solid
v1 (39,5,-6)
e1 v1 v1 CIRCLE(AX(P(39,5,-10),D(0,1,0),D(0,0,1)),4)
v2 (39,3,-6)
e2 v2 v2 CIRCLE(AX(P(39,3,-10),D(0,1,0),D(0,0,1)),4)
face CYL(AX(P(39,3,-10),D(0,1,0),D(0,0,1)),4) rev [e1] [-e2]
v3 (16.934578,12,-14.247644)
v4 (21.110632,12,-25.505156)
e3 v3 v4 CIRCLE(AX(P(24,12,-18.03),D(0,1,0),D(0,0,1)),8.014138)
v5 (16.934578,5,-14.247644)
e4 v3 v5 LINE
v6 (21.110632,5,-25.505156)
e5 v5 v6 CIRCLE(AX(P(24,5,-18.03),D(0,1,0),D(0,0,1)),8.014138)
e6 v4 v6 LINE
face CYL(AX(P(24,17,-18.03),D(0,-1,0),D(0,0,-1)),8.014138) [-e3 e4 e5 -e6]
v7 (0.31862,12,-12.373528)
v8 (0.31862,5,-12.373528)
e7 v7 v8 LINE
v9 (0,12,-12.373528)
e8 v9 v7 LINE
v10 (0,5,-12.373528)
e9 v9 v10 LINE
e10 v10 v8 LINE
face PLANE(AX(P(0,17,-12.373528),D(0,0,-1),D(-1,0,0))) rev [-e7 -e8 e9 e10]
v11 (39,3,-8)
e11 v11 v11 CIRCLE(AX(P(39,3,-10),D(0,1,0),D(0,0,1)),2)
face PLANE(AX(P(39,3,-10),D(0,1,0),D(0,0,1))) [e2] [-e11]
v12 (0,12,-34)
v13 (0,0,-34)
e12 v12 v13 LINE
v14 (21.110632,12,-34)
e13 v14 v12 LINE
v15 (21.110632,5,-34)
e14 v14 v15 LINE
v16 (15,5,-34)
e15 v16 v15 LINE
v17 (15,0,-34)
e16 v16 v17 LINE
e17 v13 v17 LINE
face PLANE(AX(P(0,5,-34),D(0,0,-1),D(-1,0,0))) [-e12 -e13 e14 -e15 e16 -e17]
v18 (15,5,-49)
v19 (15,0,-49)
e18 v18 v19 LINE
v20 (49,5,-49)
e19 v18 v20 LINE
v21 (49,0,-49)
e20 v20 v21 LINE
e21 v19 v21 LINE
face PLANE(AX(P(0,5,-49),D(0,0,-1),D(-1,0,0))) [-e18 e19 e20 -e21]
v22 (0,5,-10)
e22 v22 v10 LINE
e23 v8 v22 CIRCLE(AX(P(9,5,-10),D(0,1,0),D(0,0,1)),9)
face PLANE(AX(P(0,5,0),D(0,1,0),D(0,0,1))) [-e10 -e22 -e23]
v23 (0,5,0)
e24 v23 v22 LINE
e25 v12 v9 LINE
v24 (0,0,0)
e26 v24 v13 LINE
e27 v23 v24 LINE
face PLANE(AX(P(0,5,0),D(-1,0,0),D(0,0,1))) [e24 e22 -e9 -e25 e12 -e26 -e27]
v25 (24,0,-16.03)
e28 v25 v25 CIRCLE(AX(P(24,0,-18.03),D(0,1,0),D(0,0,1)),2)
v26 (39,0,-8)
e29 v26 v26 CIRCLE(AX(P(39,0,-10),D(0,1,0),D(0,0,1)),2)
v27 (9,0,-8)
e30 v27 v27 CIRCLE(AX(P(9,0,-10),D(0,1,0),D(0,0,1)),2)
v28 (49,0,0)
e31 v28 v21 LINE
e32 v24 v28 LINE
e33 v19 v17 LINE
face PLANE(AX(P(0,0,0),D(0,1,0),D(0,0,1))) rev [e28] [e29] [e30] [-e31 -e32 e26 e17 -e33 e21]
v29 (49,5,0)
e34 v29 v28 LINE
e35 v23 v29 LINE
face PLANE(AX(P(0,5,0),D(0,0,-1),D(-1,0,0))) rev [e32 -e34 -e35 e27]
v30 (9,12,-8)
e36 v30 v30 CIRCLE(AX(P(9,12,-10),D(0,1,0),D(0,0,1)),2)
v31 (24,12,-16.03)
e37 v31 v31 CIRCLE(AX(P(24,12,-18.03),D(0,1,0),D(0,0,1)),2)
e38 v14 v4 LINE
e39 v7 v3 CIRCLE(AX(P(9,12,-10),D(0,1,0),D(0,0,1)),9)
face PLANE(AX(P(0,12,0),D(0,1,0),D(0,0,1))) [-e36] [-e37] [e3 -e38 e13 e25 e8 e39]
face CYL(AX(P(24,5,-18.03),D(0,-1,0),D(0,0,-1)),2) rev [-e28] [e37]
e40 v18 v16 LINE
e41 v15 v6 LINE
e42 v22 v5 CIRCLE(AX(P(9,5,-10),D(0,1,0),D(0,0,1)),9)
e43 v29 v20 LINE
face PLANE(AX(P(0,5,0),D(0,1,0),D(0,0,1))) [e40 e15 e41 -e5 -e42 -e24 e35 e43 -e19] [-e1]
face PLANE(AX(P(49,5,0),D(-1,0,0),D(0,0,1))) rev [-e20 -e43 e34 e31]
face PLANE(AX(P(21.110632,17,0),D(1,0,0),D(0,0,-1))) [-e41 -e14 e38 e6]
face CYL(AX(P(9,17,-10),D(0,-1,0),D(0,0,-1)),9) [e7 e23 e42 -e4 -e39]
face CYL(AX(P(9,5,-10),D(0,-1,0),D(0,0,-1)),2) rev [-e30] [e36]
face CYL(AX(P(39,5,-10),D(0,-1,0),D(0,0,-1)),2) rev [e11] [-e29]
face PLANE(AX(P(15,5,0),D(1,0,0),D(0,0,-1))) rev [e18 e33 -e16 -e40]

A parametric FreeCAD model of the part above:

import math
import FreeCAD as App
import Part
import Sketcher

V = App.Vector

doc = App.newDocument("Part")
body = doc.addObject("PartDesign::Body", "Body")

# Sketch on XZ plane
sketch1 = body.newObject("Sketcher::SketchObject", "Sketch")
sketch1.AttachmentSupport = (doc.getObject("XZ_Plane"), [""])
sketch1.MapMode = "FlatFace"
sketch1.addGeometry(Part.LineSegment(V(0, -34, 0), V(0, 0, 0)), False)
sketch1.addGeometry(Part.LineSegment(V(0, 0, 0), V(49, 0, 0)), False)
sketch1.addGeometry(Part.LineSegment(V(49, 0, 0), V(49, -49, 0)), False)
sketch1.addGeometry(Part.LineSegment(V(49, -49, 0), V(15, -49, 0)), False)
sketch1.addGeometry(Part.LineSegment(V(15, -49, 0), V(15, -34, 0)), False)
sketch1.addGeometry(Part.LineSegment(V(15, -34, 0), V(0, -34, 0)), False)
sketch1.addGeometry(Part.Circle(V(9, -10, 0), V(0, 0, 1), 2), False)
sketch1.addGeometry(Part.Circle(V(39, -10, 0), V(0, 0, 1), 2), False)
sketch1.addGeometry(Part.Circle(V(24, -18.03, 0), V(0, 0, 1), 2), False)
sketch1.addConstraint(Sketcher.Constraint("Coincident", 0, 2, 1, 1))
sketch1.addConstraint(Sketcher.Constraint("Coincident", 1, 2, 2, 1))
sketch1.addConstraint(Sketcher.Constraint("Coincident", 2, 2, 3, 1))
sketch1.addConstraint(Sketcher.Constraint("Coincident", 3, 2, 4, 1))
sketch1.addConstraint(Sketcher.Constraint("Coincident", 4, 2, 5, 1))
sketch1.addConstraint(Sketcher.Constraint("Coincident", 5, 2, 0, 1))
sketch1.addConstraint(Sketcher.Constraint("Vertical", 0))
sketch1.addConstraint(Sketcher.Constraint("Horizontal", 1))
sketch1.addConstraint(Sketcher.Constraint("Vertical", 2))
sketch1.addConstraint(Sketcher.Constraint("Horizontal", 3))
sketch1.addConstraint(Sketcher.Constraint("Vertical", 4))
sketch1.addConstraint(Sketcher.Constraint("Horizontal", 5))
sketch1.addConstraint(Sketcher.Constraint("Coincident", 0, 2, -1, 1))
sketch1.addConstraint(Sketcher.Constraint("Equal", 6, 7))
sketch1.addConstraint(Sketcher.Constraint("Equal", 7, 8))
sketch1.addConstraint(Sketcher.Constraint("Horizontal", 6, 3, 7, 3))
sketch1.addConstraint(Sketcher.Constraint("Equal", 3, 0))
sketch1.addConstraint(Sketcher.Constraint("Equal", 1, 2))
sketch1.addConstraint(Sketcher.Constraint("Diameter", 6, 4.0))
sketch1.addConstraint(Sketcher.Constraint("DistanceX", 1, 1, 1, 2, 49.0))
sketch1.addConstraint(Sketcher.Constraint("DistanceX", 3, 2, 3, 1, 34.0))
sketch1.addConstraint(Sketcher.Constraint("DistanceX", -1, 1, 6, 3, 9.0))
sketch1.addConstraint(Sketcher.Constraint("DistanceY", 6, 3, -1, 1, 10.0))
sketch1.addConstraint(Sketcher.Constraint("DistanceX", -1, 1, 7, 3, 39.0))
sketch1.addConstraint(Sketcher.Constraint("DistanceX", -1, 1, 8, 3, 24.0))
sketch1.addConstraint(Sketcher.Constraint("DistanceY", 8, 3, -1, 1, 18.03))
pad1 = body.newObject("PartDesign::Pad", "Pad")
pad1.Profile = sketch1
pad1.Length = 5
pad1.Reversed = True

# Sketch on XZ plane
sketch2 = body.newObject("Sketcher::SketchObject", "Sketch001")
sketch2.AttachmentSupport = (doc.getObject("XZ_Plane"), [""])
sketch2.MapMode = "FlatFace"
sketch2.AttachmentOffset = App.Placement(V(0, 0, -5), App.Rotation())
sketch2.addGeometry(Part.Circle(V(39, -10, 0), V(0, 0, 1), 4), False)
sketch2.addConstraint(Sketcher.Constraint("Diameter", 0, 8.0))
sketch2.addConstraint(Sketcher.Constraint("DistanceX", -1, 1, 0, 3, 39.0))
sketch2.addConstraint(Sketcher.Constraint("DistanceY", 0, 3, -1, 1, 10.0))
pocket1 = body.newObject("PartDesign::Pocket", "Pocket")
pocket1.Profile = sketch2
pocket1.Length = 2
pocket1.Reversed = True

# Sketch on XZ plane
sketch3 = body.newObject("Sketcher::SketchObject", "Sketch002")
sketch3.AttachmentSupport = (doc.getObject("XZ_Plane"), [""])
sketch3.MapMode = "FlatFace"
sketch3.AttachmentOffset = App.Placement(V(0, 0, -5), App.Rotation())
sketch3.addGeometry(Part.LineSegment(V(0, -34, 0), V(0, -12.373528, 0)), False)
sketch3.addGeometry(Part.LineSegment(V(0, -12.373528, 0), V(0.31862, -12.373528, 0)), False)
sketch3.addGeometry(Part.ArcOfCircle(Part.Circle(V(9, -10, 0), V(0, 0, 1), 9), math.radians(180), math.radians(195.291223)), False)
sketch3.addGeometry(Part.ArcOfCircle(Part.Circle(V(9, -10, 0), V(0, 0, 1), 9), math.radians(0), math.radians(180)), False)
sketch3.addGeometry(Part.ArcOfCircle(Part.Circle(V(9, -10, 0), V(0, 0, 1), 9), math.radians(-15.291223), math.radians(0)), False)
sketch3.addGeometry(Part.ArcOfCircle(Part.Circle(V(9, -10, 0), V(0, 0, 1), 9), math.radians(-28.161633), math.radians(-15.291223)), False)
sketch3.addGeometry(Part.ArcOfCircle(Part.Circle(V(24, -18.03, 0), V(0, 0, 1), 8.014138), math.radians(135.104843), math.radians(151.838378)), False)
sketch3.addGeometry(Part.ArcOfCircle(Part.Circle(V(24, -18.03, 0), V(0, 0, 1), 8.014138), math.radians(0), math.radians(135.104843)), False)
sketch3.addGeometry(Part.ArcOfCircle(Part.Circle(V(24, -18.03, 0), V(0, 0, 1), 8.014138), math.radians(-111.132985), math.radians(0)), False)
sketch3.addGeometry(Part.LineSegment(V(21.110632, -25.505156, 0), V(21.110632, -34, 0)), False)
sketch3.addGeometry(Part.LineSegment(V(21.110632, -34, 0), V(0, -34, 0)), False)
sketch3.addGeometry(Part.Circle(V(9, -10, 0), V(0, 0, 1), 2), False)
sketch3.addGeometry(Part.Circle(V(24, -18.03, 0), V(0, 0, 1), 2), False)
sketch3.addConstraint(Sketcher.Constraint("Coincident", 0, 2, 1, 1))
sketch3.addConstraint(Sketcher.Constraint("Coincident", 1, 2, 2, 2))
sketch3.addConstraint(Sketcher.Constraint("Tangent", 2, 1, 3, 2))
sketch3.addConstraint(Sketcher.Constraint("Tangent", 3, 1, 4, 2))
sketch3.addConstraint(Sketcher.Constraint("Tangent", 4, 1, 5, 2))
sketch3.addConstraint(Sketcher.Constraint("Tangent", 5, 1, 6, 2))
sketch3.addConstraint(Sketcher.Constraint("Tangent", 6, 1, 7, 2))
sketch3.addConstraint(Sketcher.Constraint("Tangent", 7, 1, 8, 2))
sketch3.addConstraint(Sketcher.Constraint("Coincident", 8, 1, 9, 1))
sketch3.addConstraint(Sketcher.Constraint("Coincident", 9, 2, 10, 1))
sketch3.addConstraint(Sketcher.Constraint("Coincident", 10, 2, 0, 1))
sketch3.addConstraint(Sketcher.Constraint("Vertical", 0))
sketch3.addConstraint(Sketcher.Constraint("Horizontal", 1))
sketch3.addConstraint(Sketcher.Constraint("Vertical", 9))
sketch3.addConstraint(Sketcher.Constraint("Horizontal", 10))
sketch3.addConstraint(Sketcher.Constraint("Coincident", 5, 3, 2, 3))
sketch3.addConstraint(Sketcher.Constraint("Coincident", 8, 3, 6, 3))
sketch3.addConstraint(Sketcher.Constraint("Coincident", 11, 3, 2, 3))
sketch3.addConstraint(Sketcher.Constraint("Coincident", 12, 3, 6, 3))
sketch3.addConstraint(Sketcher.Constraint("Equal", 2, 3))
sketch3.addConstraint(Sketcher.Constraint("Equal", 11, 12))
sketch3.addConstraint(Sketcher.Constraint("PointOnObject", 0, 2, -2))
sketch3.addConstraint(Sketcher.Constraint("PointOnObject", 2, 1, -2))
sketch3.addConstraint(Sketcher.Constraint("Horizontal", 11, 3, 2, 1))
sketch3.addConstraint(Sketcher.Constraint("Horizontal", 2, 1, 3, 1))
sketch3.addConstraint(Sketcher.Constraint("Horizontal", 1, 2, 4, 1))
sketch3.addConstraint(Sketcher.Constraint("Horizontal", 4, 1, 6, 1))
sketch3.addConstraint(Sketcher.Constraint("Horizontal", 12, 3, 7, 1))
sketch3.addConstraint(Sketcher.Constraint("Diameter", 11, 4.0))
sketch3.addConstraint(Sketcher.Constraint("Radius", 2, 9.0))
sketch3.addConstraint(Sketcher.Constraint("DistanceY", 2, 3, -1, 1, 10.0))
sketch3.addConstraint(Sketcher.Constraint("DistanceX", -1, 1, 6, 3, 24.0))
sketch3.addConstraint(Sketcher.Constraint("DistanceY", 9, 2, -1, 1, 34.0))
sketch3.addConstraint(Sketcher.Constraint("DistanceY", 6, 3, -1, 1, 18.03))
sketch3.addConstraint(Sketcher.Constraint("DistanceX", 1, 1, 1, 2, 0.31862))
sketch3.addConstraint(Sketcher.Constraint("DistanceX", 10, 2, 10, 1, 21.110632))
pad2 = body.newObject("PartDesign::Pad", "Pad001")
pad2.Profile = sketch3
pad2.Length = 12
pad2.Reversed = True

# Sketch on XZ plane
sketch4 = body.newObject("Sketcher::SketchObject", "Sketch003")
sketch4.AttachmentSupport = (doc.getObject("XZ_Plane"), [""])
sketch4.MapMode = "FlatFace"
sketch4.AttachmentOffset = App.Placement(V(0, 0, -17), App.Rotation())
sketch4.addGeometry(Part.LineSegment(V(0, -34, 0), V(0, 11.635253, 0)), False)
sketch4.addGeometry(Part.LineSegment(V(0, 11.635253, 0), V(51.589864, 11.635253, 0)), False)
sketch4.addGeometry(Part.LineSegment(V(51.589864, 11.635253, 0), V(51.589864, -34, 0)), False)
sketch4.addGeometry(Part.LineSegment(V(51.589864, -34, 0), V(0, -34, 0)), False)
sketch4.addConstraint(Sketcher.Constraint("Coincident", 0, 2, 1, 1))
sketch4.addConstraint(Sketcher.Constraint("Coincident", 1, 2, 2, 1))
sketch4.addConstraint(Sketcher.Constraint("Coincident", 2, 2, 3, 1))
sketch4.addConstraint(Sketcher.Constraint("Coincident", 3, 2, 0, 1))
sketch4.addConstraint(Sketcher.Constraint("Vertical", 0))
sketch4.addConstraint(Sketcher.Constraint("Horizontal", 1))
sketch4.addConstraint(Sketcher.Constraint("Vertical", 2))
sketch4.addConstraint(Sketcher.Constraint("Horizontal", 3))
sketch4.addConstraint(Sketcher.Constraint("PointOnObject", 0, 2, -2))
sketch4.addConstraint(Sketcher.Constraint("DistanceY", 2, 2, -1, 1, 34.0))
sketch4.addConstraint(Sketcher.Constraint("DistanceX", 1, 1, 1, 2, 51.589864))
sketch4.addConstraint(Sketcher.Constraint("DistanceY", 0, 1, 0, 2, 45.635253))
pocket2 = body.newObject("PartDesign::Pocket", "Pocket001")
pocket2.Profile = sketch4
pocket2.Length = 5
pocket2.Reversed = True

doc.recompute()
